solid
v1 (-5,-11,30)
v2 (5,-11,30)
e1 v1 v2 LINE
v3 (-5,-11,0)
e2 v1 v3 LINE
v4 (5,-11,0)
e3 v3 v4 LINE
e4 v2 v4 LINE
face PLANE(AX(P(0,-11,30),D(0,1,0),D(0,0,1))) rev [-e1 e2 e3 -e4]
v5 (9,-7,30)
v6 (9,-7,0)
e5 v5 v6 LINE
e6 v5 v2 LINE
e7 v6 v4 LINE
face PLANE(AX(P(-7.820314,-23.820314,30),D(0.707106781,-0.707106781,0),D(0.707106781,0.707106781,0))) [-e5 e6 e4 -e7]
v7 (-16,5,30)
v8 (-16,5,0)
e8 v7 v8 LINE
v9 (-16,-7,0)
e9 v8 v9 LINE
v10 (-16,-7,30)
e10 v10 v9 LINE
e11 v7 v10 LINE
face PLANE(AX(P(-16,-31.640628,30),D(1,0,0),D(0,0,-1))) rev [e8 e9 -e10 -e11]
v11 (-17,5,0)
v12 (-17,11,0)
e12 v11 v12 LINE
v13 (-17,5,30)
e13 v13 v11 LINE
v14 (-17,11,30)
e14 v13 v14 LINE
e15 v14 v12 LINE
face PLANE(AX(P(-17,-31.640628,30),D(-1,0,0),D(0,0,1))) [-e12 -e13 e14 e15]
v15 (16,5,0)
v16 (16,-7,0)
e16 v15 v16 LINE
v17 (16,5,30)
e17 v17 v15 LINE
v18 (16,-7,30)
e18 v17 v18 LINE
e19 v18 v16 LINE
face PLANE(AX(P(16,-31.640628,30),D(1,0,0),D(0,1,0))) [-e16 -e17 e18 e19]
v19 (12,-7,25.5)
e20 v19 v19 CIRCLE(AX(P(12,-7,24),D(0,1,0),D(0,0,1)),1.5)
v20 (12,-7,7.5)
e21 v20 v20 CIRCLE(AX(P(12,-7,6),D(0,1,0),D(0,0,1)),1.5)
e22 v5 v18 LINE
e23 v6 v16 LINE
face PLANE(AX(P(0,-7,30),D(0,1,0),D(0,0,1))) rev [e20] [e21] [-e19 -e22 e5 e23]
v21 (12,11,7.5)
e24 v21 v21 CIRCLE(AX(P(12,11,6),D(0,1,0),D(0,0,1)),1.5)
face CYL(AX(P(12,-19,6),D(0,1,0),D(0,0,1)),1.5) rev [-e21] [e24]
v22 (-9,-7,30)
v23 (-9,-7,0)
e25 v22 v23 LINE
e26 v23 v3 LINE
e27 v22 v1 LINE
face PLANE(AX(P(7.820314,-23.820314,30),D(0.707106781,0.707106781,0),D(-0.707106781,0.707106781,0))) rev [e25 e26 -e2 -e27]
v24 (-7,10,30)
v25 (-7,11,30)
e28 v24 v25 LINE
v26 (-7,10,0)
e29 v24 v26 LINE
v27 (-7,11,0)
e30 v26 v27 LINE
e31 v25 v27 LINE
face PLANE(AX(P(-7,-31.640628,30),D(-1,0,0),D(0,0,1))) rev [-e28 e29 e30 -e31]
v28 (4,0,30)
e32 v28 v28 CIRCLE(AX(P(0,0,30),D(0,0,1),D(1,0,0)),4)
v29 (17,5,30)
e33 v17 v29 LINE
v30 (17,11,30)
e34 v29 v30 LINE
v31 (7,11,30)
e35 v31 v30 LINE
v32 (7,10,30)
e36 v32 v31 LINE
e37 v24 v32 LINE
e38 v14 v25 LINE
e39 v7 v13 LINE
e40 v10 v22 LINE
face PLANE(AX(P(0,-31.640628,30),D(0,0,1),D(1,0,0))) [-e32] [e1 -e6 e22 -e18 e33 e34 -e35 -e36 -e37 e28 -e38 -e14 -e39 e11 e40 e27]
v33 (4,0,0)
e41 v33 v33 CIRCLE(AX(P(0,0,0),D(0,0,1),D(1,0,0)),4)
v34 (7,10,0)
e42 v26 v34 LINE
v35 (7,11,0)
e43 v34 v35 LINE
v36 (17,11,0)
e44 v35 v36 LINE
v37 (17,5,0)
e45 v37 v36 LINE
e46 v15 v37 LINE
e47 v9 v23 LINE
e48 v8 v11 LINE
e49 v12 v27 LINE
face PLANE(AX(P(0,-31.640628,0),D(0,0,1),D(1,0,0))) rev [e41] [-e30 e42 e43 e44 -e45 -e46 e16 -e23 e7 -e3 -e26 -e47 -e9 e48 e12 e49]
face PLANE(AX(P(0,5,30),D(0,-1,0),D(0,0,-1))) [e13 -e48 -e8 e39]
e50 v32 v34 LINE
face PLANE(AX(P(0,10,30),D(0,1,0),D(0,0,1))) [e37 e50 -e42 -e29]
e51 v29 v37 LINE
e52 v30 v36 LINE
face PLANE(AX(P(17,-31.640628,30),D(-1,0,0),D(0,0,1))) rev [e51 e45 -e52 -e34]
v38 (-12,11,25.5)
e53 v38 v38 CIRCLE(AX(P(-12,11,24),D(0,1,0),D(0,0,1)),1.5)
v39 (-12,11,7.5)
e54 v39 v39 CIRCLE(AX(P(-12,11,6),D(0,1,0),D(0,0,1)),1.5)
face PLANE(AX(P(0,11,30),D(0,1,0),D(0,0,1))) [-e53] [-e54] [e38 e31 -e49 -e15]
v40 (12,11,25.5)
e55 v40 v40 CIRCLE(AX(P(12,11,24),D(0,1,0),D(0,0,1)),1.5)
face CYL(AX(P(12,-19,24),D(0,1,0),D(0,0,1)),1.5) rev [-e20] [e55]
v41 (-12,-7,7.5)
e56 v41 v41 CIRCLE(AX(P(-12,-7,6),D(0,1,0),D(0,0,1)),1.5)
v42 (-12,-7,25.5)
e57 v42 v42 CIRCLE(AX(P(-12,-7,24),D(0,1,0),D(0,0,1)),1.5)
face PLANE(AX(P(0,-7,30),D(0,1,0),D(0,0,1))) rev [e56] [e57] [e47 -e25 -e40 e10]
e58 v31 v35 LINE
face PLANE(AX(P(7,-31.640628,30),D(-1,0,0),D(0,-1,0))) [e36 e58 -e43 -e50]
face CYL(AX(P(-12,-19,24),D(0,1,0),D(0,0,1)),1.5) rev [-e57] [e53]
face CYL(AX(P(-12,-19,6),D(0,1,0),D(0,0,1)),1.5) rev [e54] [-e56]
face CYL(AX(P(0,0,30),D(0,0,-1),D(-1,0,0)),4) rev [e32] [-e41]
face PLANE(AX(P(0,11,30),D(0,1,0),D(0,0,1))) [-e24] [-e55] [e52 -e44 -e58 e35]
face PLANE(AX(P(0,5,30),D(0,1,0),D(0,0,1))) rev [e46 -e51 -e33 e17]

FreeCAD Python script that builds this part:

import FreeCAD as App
import Part
import Sketcher

doc = App.newDocument("Part")
params = doc.addObject("Spreadsheet::Sheet", "Params")
for row, (alias, value) in enumerate([
    ("sketch1_diameter", "8 mm"),
    ("sketch1_width", "7 mm"),
    ("sketch1_width2", "10 mm"),
    ("sketch1_width3", "1 mm"),
    ("sketch1_width4", "14 mm"),
    ("pad1_length", "30 mm"),
    ("sketch2_diameter", "3 mm"),
    ("pocket1_length", "30 mm"),
], start=1):
    params.set(f"A{row}", alias)
    params.set(f"B{row}", "=" + value)
    params.setAlias(f"B{row}", alias)

body = doc.addObject("PartDesign::Body", "Body")

sketch1 = body.newObject("Sketcher::SketchObject", "Sketch")
sketch1.AttachmentSupport = (doc.getObject("XY_Plane"), [""])
sketch1.MapMode = "FlatFace"
sketch1.addGeometry([
    Part.LineSegment(App.Vector(-16, -7, 0), App.Vector(-9, -7, 0)),
    Part.LineSegment(App.Vector(-9, -7, 0), App.Vector(-5, -11, 0)),
    Part.LineSegment(App.Vector(-5, -11, 0), App.Vector(5, -11, 0)),
    Part.LineSegment(App.Vector(5, -11, 0), App.Vector(9, -7, 0)),
    Part.LineSegment(App.Vector(9, -7, 0), App.Vector(16, -7, 0)),
    Part.LineSegment(App.Vector(16, -7, 0), App.Vector(16, 5, 0)),
    Part.LineSegment(App.Vector(16, 5, 0), App.Vector(17, 5, 0)),
    Part.LineSegment(App.Vector(17, 5, 0), App.Vector(17, 11, 0)),
    Part.LineSegment(App.Vector(17, 11, 0), App.Vector(7, 11, 0)),
    Part.LineSegment(App.Vector(7, 11, 0), App.Vector(7, 10, 0)),
    Part.LineSegment(App.Vector(7, 10, 0), App.Vector(-7, 10, 0)),
    Part.LineSegment(App.Vector(-7, 10, 0), App.Vector(-7, 11, 0)),
    Part.LineSegment(App.Vector(-7, 11, 0), App.Vector(-17, 11, 0)),
    Part.LineSegment(App.Vector(-17, 11, 0), App.Vector(-17, 5, 0)),
    Part.LineSegment(App.Vector(-17, 5, 0), App.Vector(-16, 5, 0)),
    Part.LineSegment(App.Vector(-16, 5, 0), App.Vector(-16, -7, 0)),
    Part.Circle(App.Vector(0, 0, 0), App.Vector(0, 0, 1), 4),
], False)
sketch1.addConstraint([
    Sketcher.Constraint("Coincident", 0, 2, 1, 1),
    Sketcher.Constraint("Coincident", 1, 2, 2, 1),
    Sketcher.Constraint("Coincident", 2, 2, 3, 1),
    Sketcher.Constraint("Coincident", 3, 2, 4, 1),
    Sketcher.Constraint("Coincident", 4, 2, 5, 1),
    Sketcher.Constraint("Coincident", 5, 2, 6, 1),
    Sketcher.Constraint("Coincident", 6, 2, 7, 1),
    Sketcher.Constraint("Coincident", 7, 2, 8, 1),
    Sketcher.Constraint("Coincident", 8, 2, 9, 1),
    Sketcher.Constraint("Coincident", 9, 2, 10, 1),
    Sketcher.Constraint("Coincident", 10, 2, 11, 1),
    Sketcher.Constraint("Coincident", 11, 2, 12, 1),
    Sketcher.Constraint("Coincident", 12, 2, 13, 1),
    Sketcher.Constraint("Coincident", 13, 2, 14, 1),
    Sketcher.Constraint("Coincident", 14, 2, 15, 1),
    Sketcher.Constraint("Coincident", 15, 2, 0, 1),
    Sketcher.Constraint("Horizontal", 0),
    Sketcher.Constraint("Horizontal", 2),
    Sketcher.Constraint("Horizontal", 4),
    Sketcher.Constraint("Vertical", 5),
    Sketcher.Constraint("Horizontal", 6),
    Sketcher.Constraint("Vertical", 7),
    Sketcher.Constraint("Horizontal", 8),
    Sketcher.Constraint("Vertical", 9),
    Sketcher.Constraint("Horizontal", 10),
    Sketcher.Constraint("Vertical", 11),
    Sketcher.Constraint("Horizontal", 12),
    Sketcher.Constraint("Vertical", 13),
    Sketcher.Constraint("Horizontal", 14),
    Sketcher.Constraint("Vertical", 15),
    Sketcher.Constraint("Coincident", 16, 3, -1, 1),
    Sketcher.Constraint("Symmetric", 0, 2, 3, 2, -2),
    Sketcher.Constraint("Symmetric", 8, 2, 11, 2, -2),
    Sketcher.Constraint("Symmetric", 6, 2, 13, 2, -2),
    Sketcher.Constraint("Perpendicular", 1, 3),
    Sketcher.Constraint("Equal", 0, 4),
    Sketcher.Constraint("Equal", 2, 8),
    Sketcher.Constraint("Equal", 14, 9),
    Sketcher.Constraint("Equal", 1, 3),
    Sketcher.Constraint("Diameter", 16, 8.0),
    Sketcher.Constraint("DistanceX", 0, 1, 0, 2, 7.0),
    Sketcher.Constraint("DistanceX", 2, 1, 2, 2, 10.0),
    Sketcher.Constraint("DistanceX", 6, 1, 6, 2, 1.0),
    Sketcher.Constraint("DistanceX", 10, 2, 10, 1, 14.0),
    Sketcher.Constraint("DistanceY", 5, 1, 5, 2, 12.0),
    Sketcher.Constraint("DistanceY", 7, 1, 7, 2, 6.0),
    Sketcher.Constraint("DistanceY", 0, 2, -1, 1, 7.0),
])
sketch1.setExpression("Constraints[39]", "Params.sketch1_diameter")
sketch1.setExpression("Constraints[40]", "Params.sketch1_width")
sketch1.setExpression("Constraints[41]", "Params.sketch1_width2")
sketch1.setExpression("Constraints[42]", "Params.sketch1_width3")
sketch1.setExpression("Constraints[43]", "Params.sketch1_width4")
pad1 = body.newObject("PartDesign::Pad", "Pad")
pad1.Profile = sketch1
pad1.setExpression("Length", "Params.pad1_length")

sketch2 = body.newObject("Sketcher::SketchObject", "Sketch001")
sketch2.AttachmentSupport = (doc.getObject("XZ_Plane"), [""])
sketch2.MapMode = "FlatFace"
sketch2.AttachmentOffset = App.Placement(App.Vector(0, 0, -11), App.Rotation())
sketch2.addGeometry([
    Part.Circle(App.Vector(-12, 24, 0), App.Vector(0, 0, 1), 1.5),
    Part.Circle(App.Vector(-12, 6, 0), App.Vector(0, 0, 1), 1.5),
    Part.Circle(App.Vector(12, 24, 0), App.Vector(0, 0, 1), 1.5),
    Part.Circle(App.Vector(12, 6, 0), App.Vector(0, 0, 1), 1.5),
], False)
sketch2.addConstraint([
    Sketcher.Constraint("Equal", 0, 1),
    Sketcher.Constraint("Equal", 1, 2),
    Sketcher.Constraint("Equal", 2, 3),
    Sketcher.Constraint("Symmetric", 0, 3, 2, 3, -2),
    Sketcher.Constraint("Symmetric", 1, 3, 3, 3, -2),
    Sketcher.Constraint("Vertical", 0, 3, 1, 3),
    Sketcher.Constraint("Diameter", 0, 3.0),
    Sketcher.Constraint("DistanceX", 0, 3, -1, 1, 12.0),
    Sketcher.Constraint("DistanceY", -1, 1, 0, 3, 24.0),
    Sketcher.Constraint("DistanceY", -1, 1, 1, 3, 6.0),
])
sketch2.setExpression("Constraints[6]", "Params.sketch2_diameter")
pocket1 = body.newObject("PartDesign::Pocket", "Pocket")
pocket1.Profile = sketch2
pocket1.setExpression("Length", "Params.pocket1_length")
pocket1.Reversed = True

doc.recompute()
